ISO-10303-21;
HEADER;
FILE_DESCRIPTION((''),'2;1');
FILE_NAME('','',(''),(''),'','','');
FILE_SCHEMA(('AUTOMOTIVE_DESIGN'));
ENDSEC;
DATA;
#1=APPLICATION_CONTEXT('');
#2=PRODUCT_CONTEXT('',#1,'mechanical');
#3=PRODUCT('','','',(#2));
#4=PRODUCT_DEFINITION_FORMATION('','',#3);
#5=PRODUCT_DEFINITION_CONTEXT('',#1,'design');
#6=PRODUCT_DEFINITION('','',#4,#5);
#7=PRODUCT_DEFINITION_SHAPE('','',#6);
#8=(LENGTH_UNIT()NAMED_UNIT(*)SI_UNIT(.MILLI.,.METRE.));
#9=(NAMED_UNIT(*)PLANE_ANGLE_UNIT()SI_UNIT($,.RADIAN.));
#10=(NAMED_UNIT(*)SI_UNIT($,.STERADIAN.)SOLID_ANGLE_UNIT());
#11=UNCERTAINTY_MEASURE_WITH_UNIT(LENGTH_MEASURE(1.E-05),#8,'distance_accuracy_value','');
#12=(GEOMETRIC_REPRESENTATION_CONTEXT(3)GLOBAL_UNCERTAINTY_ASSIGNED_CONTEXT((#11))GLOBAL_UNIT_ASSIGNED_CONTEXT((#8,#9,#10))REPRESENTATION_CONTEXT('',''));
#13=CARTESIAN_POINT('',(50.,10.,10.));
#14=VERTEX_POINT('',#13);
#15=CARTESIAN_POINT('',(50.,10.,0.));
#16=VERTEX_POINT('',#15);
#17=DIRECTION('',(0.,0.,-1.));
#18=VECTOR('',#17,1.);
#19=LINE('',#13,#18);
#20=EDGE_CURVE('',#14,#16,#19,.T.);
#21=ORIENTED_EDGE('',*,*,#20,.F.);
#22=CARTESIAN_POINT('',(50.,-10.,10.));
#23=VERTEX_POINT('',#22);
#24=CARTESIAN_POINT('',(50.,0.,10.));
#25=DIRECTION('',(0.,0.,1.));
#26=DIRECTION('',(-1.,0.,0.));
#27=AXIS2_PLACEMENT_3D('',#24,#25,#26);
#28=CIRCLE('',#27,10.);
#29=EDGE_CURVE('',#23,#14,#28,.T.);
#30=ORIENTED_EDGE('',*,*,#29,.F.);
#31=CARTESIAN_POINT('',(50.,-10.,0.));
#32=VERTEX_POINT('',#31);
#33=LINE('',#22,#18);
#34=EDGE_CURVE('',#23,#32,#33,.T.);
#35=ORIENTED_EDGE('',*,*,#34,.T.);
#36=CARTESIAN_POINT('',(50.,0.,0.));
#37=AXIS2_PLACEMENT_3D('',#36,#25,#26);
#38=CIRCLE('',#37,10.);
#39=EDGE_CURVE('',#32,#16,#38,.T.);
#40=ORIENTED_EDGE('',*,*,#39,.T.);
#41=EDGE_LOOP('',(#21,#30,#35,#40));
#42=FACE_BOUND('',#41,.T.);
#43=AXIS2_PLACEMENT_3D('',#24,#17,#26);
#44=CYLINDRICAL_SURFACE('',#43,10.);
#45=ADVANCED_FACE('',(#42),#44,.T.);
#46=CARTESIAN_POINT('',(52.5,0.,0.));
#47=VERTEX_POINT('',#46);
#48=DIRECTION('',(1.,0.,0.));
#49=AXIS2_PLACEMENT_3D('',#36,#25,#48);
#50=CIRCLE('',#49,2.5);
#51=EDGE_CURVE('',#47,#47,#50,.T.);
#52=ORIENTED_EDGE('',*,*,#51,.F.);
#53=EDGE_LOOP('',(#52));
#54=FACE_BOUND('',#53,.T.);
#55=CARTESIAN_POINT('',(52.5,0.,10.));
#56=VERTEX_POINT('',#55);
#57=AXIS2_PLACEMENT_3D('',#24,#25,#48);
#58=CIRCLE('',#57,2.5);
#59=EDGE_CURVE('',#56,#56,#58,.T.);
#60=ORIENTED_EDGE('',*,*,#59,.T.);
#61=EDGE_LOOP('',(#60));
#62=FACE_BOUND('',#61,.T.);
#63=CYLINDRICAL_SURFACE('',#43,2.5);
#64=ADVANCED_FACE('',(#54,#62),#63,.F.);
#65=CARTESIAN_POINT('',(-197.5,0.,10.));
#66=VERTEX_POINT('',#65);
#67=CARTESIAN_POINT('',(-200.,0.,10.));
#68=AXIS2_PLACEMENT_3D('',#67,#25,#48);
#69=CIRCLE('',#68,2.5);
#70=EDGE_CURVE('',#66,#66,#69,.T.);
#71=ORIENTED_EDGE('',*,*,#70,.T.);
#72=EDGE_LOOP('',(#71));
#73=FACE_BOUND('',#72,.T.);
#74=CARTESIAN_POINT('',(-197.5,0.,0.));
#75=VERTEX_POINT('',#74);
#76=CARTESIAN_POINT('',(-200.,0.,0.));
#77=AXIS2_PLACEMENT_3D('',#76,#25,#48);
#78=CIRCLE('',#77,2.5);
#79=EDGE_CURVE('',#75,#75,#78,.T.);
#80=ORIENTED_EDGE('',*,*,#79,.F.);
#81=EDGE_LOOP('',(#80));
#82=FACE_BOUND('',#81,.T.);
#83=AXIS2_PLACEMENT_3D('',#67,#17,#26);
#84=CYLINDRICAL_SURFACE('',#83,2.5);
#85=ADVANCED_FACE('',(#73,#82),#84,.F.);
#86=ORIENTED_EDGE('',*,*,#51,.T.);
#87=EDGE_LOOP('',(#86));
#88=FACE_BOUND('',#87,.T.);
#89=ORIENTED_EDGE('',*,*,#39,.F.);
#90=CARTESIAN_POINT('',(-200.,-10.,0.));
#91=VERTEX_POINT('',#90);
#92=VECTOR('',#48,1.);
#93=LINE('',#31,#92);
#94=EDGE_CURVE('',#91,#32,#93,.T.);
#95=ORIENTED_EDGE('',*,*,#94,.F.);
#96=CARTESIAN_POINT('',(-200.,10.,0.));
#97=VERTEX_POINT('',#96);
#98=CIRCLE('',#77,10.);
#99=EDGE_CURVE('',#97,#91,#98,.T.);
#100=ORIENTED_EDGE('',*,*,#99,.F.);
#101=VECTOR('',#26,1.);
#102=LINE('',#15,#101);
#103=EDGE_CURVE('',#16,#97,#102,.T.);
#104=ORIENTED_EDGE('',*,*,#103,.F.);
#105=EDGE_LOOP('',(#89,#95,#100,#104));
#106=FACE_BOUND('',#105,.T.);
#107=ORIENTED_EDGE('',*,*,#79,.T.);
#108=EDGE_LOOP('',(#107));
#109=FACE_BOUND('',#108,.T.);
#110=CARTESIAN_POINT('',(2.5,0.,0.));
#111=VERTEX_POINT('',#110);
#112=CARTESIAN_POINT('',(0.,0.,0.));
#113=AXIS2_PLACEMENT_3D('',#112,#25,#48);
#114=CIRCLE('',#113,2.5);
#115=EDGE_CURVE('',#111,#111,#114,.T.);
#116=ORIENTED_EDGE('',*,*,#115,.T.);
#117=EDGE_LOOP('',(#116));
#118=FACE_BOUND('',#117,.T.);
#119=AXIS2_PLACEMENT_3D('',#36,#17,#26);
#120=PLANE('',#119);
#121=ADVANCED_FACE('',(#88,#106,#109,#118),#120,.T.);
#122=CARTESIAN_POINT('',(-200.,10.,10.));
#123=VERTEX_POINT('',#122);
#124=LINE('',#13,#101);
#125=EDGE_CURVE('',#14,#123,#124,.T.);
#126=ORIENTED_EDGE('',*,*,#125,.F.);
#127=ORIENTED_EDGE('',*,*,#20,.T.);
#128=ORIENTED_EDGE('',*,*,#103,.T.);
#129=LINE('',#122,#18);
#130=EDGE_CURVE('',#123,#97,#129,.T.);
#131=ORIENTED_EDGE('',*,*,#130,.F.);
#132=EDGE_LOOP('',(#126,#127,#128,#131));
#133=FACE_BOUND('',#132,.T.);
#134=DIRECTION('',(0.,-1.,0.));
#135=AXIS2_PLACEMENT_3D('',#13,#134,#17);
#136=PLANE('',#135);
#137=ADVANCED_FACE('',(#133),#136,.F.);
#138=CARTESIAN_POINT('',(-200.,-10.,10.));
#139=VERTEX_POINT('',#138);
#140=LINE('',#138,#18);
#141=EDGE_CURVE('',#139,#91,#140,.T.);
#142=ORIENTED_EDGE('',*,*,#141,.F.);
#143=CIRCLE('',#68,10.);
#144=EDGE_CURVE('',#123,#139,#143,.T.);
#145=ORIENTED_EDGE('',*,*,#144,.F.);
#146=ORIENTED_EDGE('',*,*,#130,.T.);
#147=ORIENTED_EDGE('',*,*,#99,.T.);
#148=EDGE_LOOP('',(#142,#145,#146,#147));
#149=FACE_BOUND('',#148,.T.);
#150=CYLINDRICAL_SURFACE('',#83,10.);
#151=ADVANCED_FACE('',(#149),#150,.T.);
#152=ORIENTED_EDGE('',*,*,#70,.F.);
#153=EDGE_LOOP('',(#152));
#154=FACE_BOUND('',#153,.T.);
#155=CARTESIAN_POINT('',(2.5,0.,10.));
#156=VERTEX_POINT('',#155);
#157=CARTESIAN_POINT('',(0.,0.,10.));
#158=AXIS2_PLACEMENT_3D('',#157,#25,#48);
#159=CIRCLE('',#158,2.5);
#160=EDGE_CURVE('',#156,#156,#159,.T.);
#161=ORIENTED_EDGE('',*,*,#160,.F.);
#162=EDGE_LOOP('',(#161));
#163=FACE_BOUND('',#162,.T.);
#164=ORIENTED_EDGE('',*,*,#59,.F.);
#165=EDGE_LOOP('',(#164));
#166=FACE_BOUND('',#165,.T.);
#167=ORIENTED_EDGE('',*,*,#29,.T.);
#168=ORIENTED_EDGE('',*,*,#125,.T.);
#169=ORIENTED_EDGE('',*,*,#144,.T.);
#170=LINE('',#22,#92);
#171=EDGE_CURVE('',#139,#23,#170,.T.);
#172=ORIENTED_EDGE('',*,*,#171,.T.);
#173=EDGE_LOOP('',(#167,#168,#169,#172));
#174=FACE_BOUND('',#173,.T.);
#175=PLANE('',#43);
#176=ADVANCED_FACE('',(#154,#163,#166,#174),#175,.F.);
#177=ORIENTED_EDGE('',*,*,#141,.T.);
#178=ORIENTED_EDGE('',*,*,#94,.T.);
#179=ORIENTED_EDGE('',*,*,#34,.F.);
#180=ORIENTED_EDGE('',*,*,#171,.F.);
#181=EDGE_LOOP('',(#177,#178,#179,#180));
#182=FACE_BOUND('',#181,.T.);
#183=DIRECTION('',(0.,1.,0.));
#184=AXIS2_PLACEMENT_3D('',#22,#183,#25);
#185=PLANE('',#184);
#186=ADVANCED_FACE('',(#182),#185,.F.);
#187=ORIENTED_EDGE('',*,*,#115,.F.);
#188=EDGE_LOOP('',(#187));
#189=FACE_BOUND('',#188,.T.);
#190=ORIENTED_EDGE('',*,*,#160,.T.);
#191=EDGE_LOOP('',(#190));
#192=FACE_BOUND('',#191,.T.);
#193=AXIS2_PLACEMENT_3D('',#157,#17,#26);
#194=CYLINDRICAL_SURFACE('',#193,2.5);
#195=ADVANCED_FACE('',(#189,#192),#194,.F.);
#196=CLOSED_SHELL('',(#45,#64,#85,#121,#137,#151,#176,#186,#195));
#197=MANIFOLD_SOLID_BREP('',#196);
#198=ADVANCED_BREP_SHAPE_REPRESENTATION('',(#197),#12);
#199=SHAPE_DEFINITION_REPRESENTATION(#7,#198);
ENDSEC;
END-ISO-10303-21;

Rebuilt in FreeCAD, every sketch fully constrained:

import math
import FreeCAD as App
import Part
import Sketcher
from FreeCAD import Vector

doc = App.newDocument("Part")
params = doc.addObject("Spreadsheet::Sheet", "Params")
for row, (alias, value) in enumerate([
    ("sketch1_diameter", "5 mm"),
    ("sketch1_radius", "10 mm"),
    ("sketch1_width", "250 mm"),
    ("pad1_length", "10 mm"),
], start=1):
    params.set(f"A{row}", alias)
    params.set(f"B{row}", "=" + value)
    params.setAlias(f"B{row}", alias)

body = doc.addObject("PartDesign::Body", "Body")

sketch1 = doc.addObject("Sketcher::SketchObject", "Sketch")
body.addObject(sketch1)
sketch1.AttachmentSupport = (doc.XY_Plane, [""])
sketch1.MapMode = "FlatFace"
sketch1.addGeometry([
    Part.LineSegment(Vector(50, 10, 0), Vector(-200, 10, 0)),
    Part.ArcOfCircle(Part.Circle(Vector(-200, 0, 0), Vector(0, 0, 1), 10), math.radians(90), math.radians(270)),
    Part.LineSegment(Vector(-200, -10, 0), Vector(50, -10, 0)),
    Part.ArcOfCircle(Part.Circle(Vector(50, 0, 0), Vector(0, 0, 1), 10), math.radians(-90), math.radians(90)),
    Part.Circle(Vector(-200, 0, 0), Vector(0, 0, 1), 2.5),
    Part.Circle(Vector(0, 0, 0), Vector(0, 0, 1), 2.5),
    Part.Circle(Vector(50, 0, 0), Vector(0, 0, 1), 2.5),
], False)
sketch1.addConstraint([
    Sketcher.Constraint("Tangent", 0, 2, 1, 1),
    Sketcher.Constraint("Tangent", 1, 2, 2, 1),
    Sketcher.Constraint("Tangent", 2, 2, 3, 1),
    Sketcher.Constraint("Tangent", 3, 2, 0, 1),
    Sketcher.Constraint("Horizontal", 0),
    Sketcher.Constraint("Horizontal", 2),
    Sketcher.Constraint("Coincident", 5, 3, -1, 1),
    Sketcher.Constraint("Coincident", 4, 3, 1, 3),
    Sketcher.Constraint("Coincident", 6, 3, 3, 3),
    Sketcher.Constraint("Equal", 4, 5),
    Sketcher.Constraint("Equal", 5, 6),
    Sketcher.Constraint("PointOnObject", 1, 3, -1),
    Sketcher.Constraint("Diameter", 4, 5.0),
    Sketcher.Constraint("Radius", 1, 10.0),
    Sketcher.Constraint("DistanceX", 0, 2, 0, 1, 250.0),
    Sketcher.Constraint("DistanceX", 1, 3, -1, 1, 200.0),
])
sketch1.setExpression("Constraints[12]", "Params.sketch1_diameter")
sketch1.setExpression("Constraints[13]", "Params.sketch1_radius")
sketch1.setExpression("Constraints[14]", "Params.sketch1_width")
pad1 = doc.addObject("PartDesign::Pad", "Pad")
body.addObject(pad1)
pad1.Profile = sketch1
pad1.setExpression("Length", "Params.pad1_length")

doc.recompute()
